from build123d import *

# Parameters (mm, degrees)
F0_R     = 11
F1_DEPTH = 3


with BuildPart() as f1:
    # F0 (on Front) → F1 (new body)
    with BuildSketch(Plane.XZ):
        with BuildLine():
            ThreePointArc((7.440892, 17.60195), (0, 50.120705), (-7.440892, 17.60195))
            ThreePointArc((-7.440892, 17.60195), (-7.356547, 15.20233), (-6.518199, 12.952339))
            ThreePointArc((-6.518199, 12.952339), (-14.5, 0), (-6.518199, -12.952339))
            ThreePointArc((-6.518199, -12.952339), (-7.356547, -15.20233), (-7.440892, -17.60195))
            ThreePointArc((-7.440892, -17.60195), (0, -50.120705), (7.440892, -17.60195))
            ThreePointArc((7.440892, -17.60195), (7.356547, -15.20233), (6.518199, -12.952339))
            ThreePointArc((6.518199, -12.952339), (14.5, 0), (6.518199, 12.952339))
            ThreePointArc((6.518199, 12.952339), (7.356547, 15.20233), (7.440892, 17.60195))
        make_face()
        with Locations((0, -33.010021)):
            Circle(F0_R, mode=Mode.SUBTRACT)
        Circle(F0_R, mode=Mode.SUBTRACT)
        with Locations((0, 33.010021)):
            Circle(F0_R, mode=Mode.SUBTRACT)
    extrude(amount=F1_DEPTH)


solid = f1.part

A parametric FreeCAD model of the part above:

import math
import FreeCAD as App
import Part
import Sketcher
from FreeCAD import Vector

doc = App.newDocument("Part")
body = doc.addObject("PartDesign::Body", "Body")

sketch1 = body.newObject("Sketcher::SketchObject", "Sketch")
sketch1.AttachmentSupport = (doc.getObject("XZ_Plane"), [""])
sketch1.MapMode = "FlatFace"
sketch1.addGeometry([
    Part.ArcOfCircle(Part.Circle(Vector(0, 33.010021, 0), Vector(0, 0, 1), 17.110684), math.radians(-64.223094), math.radians(244.223094)),
    Part.ArcOfCircle(Part.Circle(Vector(-0.000012, 16.6622, 0), Vector(0, 0, 1), 7.499989), math.radians(172.801905), math.radians(209.646595)),
    Part.ArcOfCircle(Part.Circle(Vector(0, 0, 0), Vector(0, 0, 1), 14.5), math.radians(116.713596), math.radians(243.286404)),
    Part.ArcOfCircle(Part.Circle(Vector(-0.000012, -16.6622, 0), Vector(0, 0, 1), 7.499989), math.radians(150.353405), math.radians(187.198095)),
    Part.ArcOfCircle(Part.Circle(Vector(0, -33.010021, 0), Vector(0, 0, 1), 17.110684), math.radians(115.776906), math.radians(424.223094)),
    Part.ArcOfCircle(Part.Circle(Vector(0.000012, -16.6622, 0), Vector(0, 0, 1), 7.499989), math.radians(-7.198095), math.radians(29.646595)),
    Part.ArcOfCircle(Part.Circle(Vector(0, 0, 0), Vector(0, 0, 1), 14.5), math.radians(-63.286404), math.radians(63.286404)),
    Part.ArcOfCircle(Part.Circle(Vector(0.000012, 16.6622, 0), Vector(0, 0, 1), 7.499989), math.radians(-29.646595), math.radians(7.198095)),
    Part.Circle(Vector(0, -33.010021, 0), Vector(0, 0, 1), 11),
    Part.Circle(Vector(0, 0, 0), Vector(0, 0, 1), 11),
    Part.Circle(Vector(0, 33.010021, 0), Vector(0, 0, 1), 11),
], False)
sketch1.addConstraint([
    Sketcher.Constraint("Coincident", 0, 2, 1, 1),
    Sketcher.Constraint("Coincident", 1, 2, 2, 1),
    Sketcher.Constraint("Coincident", 2, 2, 3, 1),
    Sketcher.Constraint("Coincident", 3, 2, 4, 1),
    Sketcher.Constraint("Coincident", 4, 2, 5, 1),
    Sketcher.Constraint("Coincident", 5, 2, 6, 1),
    Sketcher.Constraint("Coincident", 6, 2, 7, 1),
    Sketcher.Constraint("Coincident", 7, 2, 0, 1),
    Sketcher.Constraint("Coincident", 2, 3, -1, 1),
    Sketcher.Constraint("Coincident", 6, 3, -1, 1),
    Sketcher.Constraint("Coincident", 9, 3, -1, 1),
    Sketcher.Constraint("Coincident", 8, 3, 4, 3),
    Sketcher.Constraint("Coincident", 10, 3, 0, 3),
    Sketcher.Constraint("Equal", 1, 3),
    Sketcher.Constraint("Equal", 0, 4),
    Sketcher.Constraint("Equal", 3, 5),
    Sketcher.Constraint("Equal", 2, 6),
    Sketcher.Constraint("Equal", 5, 7),
    Sketcher.Constraint("Equal", 8, 9),
    Sketcher.Constraint("Equal", 9, 10),
    Sketcher.Constraint("Symmetric", 0, 3, 4, 3, -1, 1),
    Sketcher.Constraint("Symmetric", 1, 3, 5, 3, -1, 1),
    Sketcher.Constraint("Symmetric", 3, 3, 7, 3, -1, 1),
    Sketcher.Constraint("Symmetric", 3, 3, 5, 3, -2),
    Sketcher.Constraint("PointOnObject", 0, 3, -2),
    Sketcher.Constraint("Diameter", 8, 22.0),
    Sketcher.Constraint("Radius", 2, 14.5),
    Sketcher.Constraint("Radius", 1, 7.499989),
    Sketcher.Constraint("Radius", 0, 17.110684),
    Sketcher.Constraint("DistanceY", -1, 1, 1, 3, 16.6622),
    Sketcher.Constraint("DistanceX", 1, 2, -1, 1, 6.518199),
    Sketcher.Constraint("DistanceY", -1, 1, 0, 3, 33.010021),
])
pad1 = body.newObject("PartDesign::Pad", "Pad")
pad1.Profile = sketch1
pad1.Length = 3

doc.recompute()
